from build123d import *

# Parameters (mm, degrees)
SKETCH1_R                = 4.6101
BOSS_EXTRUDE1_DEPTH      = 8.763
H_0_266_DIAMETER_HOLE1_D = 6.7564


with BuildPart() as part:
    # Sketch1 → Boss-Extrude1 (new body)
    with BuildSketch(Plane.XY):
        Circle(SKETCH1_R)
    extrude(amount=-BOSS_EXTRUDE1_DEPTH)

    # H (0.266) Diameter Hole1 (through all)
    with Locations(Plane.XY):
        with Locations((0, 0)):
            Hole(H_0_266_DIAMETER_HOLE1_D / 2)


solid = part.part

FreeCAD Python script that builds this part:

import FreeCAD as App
import Part
import Sketcher
from FreeCAD import Vector
Q = App.Units.Quantity

doc = App.newDocument("Part")
body = doc.addObject("PartDesign::Body", "Body")

sketch1 = doc.addObject("Sketcher::SketchObject", "Sketch")
body.addObject(sketch1)
sketch1.AttachmentSupport = (doc.XY_Plane, [""])
sketch1.MapMode = "FlatFace"
sketch1.addGeometry(Part.Circle(Vector(0, 0, 0), Vector(0, 0, 1), 4.6), False)
sketch1.addConstraint([
    Sketcher.Constraint("Coincident", 0, 3, -1, 1),
    Sketcher.Constraint("Diameter", 0, Q("0.363 in")),
])
pad1 = doc.addObject("PartDesign::Pad", "Pad")
body.addObject(pad1)
pad1.Profile = sketch1
pad1.Length = Q("0.345 in")
pad1.Reversed = True

sketch2 = doc.addObject("Sketcher::SketchObject", "Sketch001")
body.addObject(sketch2)
sketch2.AttachmentSupport = (doc.XY_Plane, [""])
sketch2.MapMode = "FlatFace"
sketch2.addGeometry(Part.Circle(Vector(0, 0, 0), Vector(0, 0, 1), 3.4), False)
sketch2.addConstraint([
    Sketcher.Constraint("Coincident", 0, 3, -1, 1),
    Sketcher.Constraint("Diameter", 0, Q("0.266 in")),
])
doc.recompute()
hole = doc.addObject("PartDesign::Hole", "Hole")
body.addObject(hole)
hole.Profile = sketch2
hole.ThreadType = "None"
hole.Diameter = Q("0.266 in")
hole.DepthType = "ThroughAll"

doc.recompute()
